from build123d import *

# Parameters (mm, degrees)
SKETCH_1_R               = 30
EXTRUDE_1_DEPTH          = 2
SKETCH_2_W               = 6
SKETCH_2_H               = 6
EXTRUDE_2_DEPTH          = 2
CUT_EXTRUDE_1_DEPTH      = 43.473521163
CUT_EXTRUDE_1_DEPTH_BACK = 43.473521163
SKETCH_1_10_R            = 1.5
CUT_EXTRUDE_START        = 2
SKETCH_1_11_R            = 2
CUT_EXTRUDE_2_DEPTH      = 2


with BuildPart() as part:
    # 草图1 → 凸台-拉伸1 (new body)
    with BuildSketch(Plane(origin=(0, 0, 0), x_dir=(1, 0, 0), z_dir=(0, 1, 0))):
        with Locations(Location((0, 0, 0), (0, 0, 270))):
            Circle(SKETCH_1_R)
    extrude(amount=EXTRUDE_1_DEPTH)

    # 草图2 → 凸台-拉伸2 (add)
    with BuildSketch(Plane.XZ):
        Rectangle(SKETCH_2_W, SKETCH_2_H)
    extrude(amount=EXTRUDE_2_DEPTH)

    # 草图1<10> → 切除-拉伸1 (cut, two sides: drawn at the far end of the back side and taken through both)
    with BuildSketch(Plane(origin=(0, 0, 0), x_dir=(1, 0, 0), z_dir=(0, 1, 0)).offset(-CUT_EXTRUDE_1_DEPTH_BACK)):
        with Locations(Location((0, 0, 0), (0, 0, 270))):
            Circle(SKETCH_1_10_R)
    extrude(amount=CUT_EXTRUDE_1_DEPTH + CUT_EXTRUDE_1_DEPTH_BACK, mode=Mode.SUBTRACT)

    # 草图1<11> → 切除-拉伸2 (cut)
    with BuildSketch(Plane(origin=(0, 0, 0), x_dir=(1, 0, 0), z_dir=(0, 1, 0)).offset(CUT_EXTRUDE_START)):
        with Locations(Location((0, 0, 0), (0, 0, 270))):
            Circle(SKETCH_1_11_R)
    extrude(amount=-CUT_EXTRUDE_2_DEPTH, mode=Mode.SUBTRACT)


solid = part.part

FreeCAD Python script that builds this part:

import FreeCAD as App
import Part
import Sketcher

V = App.Vector
Q = App.Units.Quantity

doc = App.newDocument("Part")
body = doc.addObject("PartDesign::Body", "Body")

sketch1 = body.newObject("Sketcher::SketchObject", "Sketch")
sketch1.AttachmentSupport = (doc.getObject("XZ_Plane"), [""])
sketch1.MapMode = "FlatFace"
sketch1.addGeometry(Part.Circle(V(0, 0, 0), V(0, 0, 1), 30), False)
sketch1.addConstraint([
    Sketcher.Constraint("Coincident", 0, 3, -1, 1),
    Sketcher.Constraint("Diameter", 0, Q("60 mm")),
])
pad1 = body.newObject("PartDesign::Pad", "Pad")
pad1.Profile = sketch1
pad1.Length = 2
pad1.Reversed = True

sketch2 = body.newObject("Sketcher::SketchObject", "Sketch001")
sketch2.AttachmentSupport = (doc.getObject("XZ_Plane"), [""])
sketch2.MapMode = "FlatFace"
sketch2.addGeometry([
    Part.LineSegment(V(-3, 3, 0), V(-3, -3, 0)),
    Part.LineSegment(V(-3, -3, 0), V(3, -3, 0)),
    Part.LineSegment(V(3, -3, 0), V(3, 3, 0)),
    Part.LineSegment(V(3, 3, 0), V(-3, 3, 0)),
], False)
sketch2.addConstraint([
    Sketcher.Constraint("Coincident", 0, 2, 1, 1),
    Sketcher.Constraint("Coincident", 1, 2, 2, 1),
    Sketcher.Constraint("Coincident", 2, 2, 3, 1),
    Sketcher.Constraint("Coincident", 3, 2, 0, 1),
    Sketcher.Constraint("Vertical", 0),
    Sketcher.Constraint("Horizontal", 1),
    Sketcher.Constraint("Vertical", 2),
    Sketcher.Constraint("Horizontal", 3),
    Sketcher.Constraint("Symmetric", 0, 2, 2, 2, -1, 1),
    Sketcher.Constraint("Equal", 3, 0),
    Sketcher.Constraint("DistanceX", 1, 1, 1, 2, Q("6 mm")),
])
pad2 = body.newObject("PartDesign::Pad", "Pad001")
pad2.Profile = sketch2
pad2.Length = 2

sketch3 = body.newObject("Sketcher::SketchObject", "Sketch002")
sketch3.AttachmentSupport = (doc.getObject("XZ_Plane"), [""])
sketch3.MapMode = "FlatFace"
sketch3.addGeometry(Part.Circle(V(0, 0, 0), V(0, 0, 1), 1.5), False)
sketch3.addConstraint([
    Sketcher.Constraint("Coincident", 0, 3, -1, 1),
    Sketcher.Constraint("Diameter", 0, Q("3 mm")),
])
pocket1 = body.newObject("PartDesign::Pocket", "Pocket")
pocket1.Profile = sketch3
pocket1.Type = "ThroughAll"
pocket1.Midplane = True

sketch4 = body.newObject("Sketcher::SketchObject", "Sketch003")
sketch4.AttachmentSupport = (doc.getObject("XZ_Plane"), [""])
sketch4.MapMode = "FlatFace"
sketch4.AttachmentOffset = App.Placement(V(0, 0, -2), App.Rotation())
sketch4.addGeometry(Part.Circle(V(0, 0, 0), V(0, 0, 1), 2), False)
sketch4.addConstraint([
    Sketcher.Constraint("Coincident", 0, 3, -1, 1),
    Sketcher.Constraint("Diameter", 0, Q("4 mm")),
])
pocket2 = body.newObject("PartDesign::Pocket", "Pocket001")
pocket2.Profile = sketch4
pocket2.Length = 2
pocket2.Reversed = True

doc.recompute()
